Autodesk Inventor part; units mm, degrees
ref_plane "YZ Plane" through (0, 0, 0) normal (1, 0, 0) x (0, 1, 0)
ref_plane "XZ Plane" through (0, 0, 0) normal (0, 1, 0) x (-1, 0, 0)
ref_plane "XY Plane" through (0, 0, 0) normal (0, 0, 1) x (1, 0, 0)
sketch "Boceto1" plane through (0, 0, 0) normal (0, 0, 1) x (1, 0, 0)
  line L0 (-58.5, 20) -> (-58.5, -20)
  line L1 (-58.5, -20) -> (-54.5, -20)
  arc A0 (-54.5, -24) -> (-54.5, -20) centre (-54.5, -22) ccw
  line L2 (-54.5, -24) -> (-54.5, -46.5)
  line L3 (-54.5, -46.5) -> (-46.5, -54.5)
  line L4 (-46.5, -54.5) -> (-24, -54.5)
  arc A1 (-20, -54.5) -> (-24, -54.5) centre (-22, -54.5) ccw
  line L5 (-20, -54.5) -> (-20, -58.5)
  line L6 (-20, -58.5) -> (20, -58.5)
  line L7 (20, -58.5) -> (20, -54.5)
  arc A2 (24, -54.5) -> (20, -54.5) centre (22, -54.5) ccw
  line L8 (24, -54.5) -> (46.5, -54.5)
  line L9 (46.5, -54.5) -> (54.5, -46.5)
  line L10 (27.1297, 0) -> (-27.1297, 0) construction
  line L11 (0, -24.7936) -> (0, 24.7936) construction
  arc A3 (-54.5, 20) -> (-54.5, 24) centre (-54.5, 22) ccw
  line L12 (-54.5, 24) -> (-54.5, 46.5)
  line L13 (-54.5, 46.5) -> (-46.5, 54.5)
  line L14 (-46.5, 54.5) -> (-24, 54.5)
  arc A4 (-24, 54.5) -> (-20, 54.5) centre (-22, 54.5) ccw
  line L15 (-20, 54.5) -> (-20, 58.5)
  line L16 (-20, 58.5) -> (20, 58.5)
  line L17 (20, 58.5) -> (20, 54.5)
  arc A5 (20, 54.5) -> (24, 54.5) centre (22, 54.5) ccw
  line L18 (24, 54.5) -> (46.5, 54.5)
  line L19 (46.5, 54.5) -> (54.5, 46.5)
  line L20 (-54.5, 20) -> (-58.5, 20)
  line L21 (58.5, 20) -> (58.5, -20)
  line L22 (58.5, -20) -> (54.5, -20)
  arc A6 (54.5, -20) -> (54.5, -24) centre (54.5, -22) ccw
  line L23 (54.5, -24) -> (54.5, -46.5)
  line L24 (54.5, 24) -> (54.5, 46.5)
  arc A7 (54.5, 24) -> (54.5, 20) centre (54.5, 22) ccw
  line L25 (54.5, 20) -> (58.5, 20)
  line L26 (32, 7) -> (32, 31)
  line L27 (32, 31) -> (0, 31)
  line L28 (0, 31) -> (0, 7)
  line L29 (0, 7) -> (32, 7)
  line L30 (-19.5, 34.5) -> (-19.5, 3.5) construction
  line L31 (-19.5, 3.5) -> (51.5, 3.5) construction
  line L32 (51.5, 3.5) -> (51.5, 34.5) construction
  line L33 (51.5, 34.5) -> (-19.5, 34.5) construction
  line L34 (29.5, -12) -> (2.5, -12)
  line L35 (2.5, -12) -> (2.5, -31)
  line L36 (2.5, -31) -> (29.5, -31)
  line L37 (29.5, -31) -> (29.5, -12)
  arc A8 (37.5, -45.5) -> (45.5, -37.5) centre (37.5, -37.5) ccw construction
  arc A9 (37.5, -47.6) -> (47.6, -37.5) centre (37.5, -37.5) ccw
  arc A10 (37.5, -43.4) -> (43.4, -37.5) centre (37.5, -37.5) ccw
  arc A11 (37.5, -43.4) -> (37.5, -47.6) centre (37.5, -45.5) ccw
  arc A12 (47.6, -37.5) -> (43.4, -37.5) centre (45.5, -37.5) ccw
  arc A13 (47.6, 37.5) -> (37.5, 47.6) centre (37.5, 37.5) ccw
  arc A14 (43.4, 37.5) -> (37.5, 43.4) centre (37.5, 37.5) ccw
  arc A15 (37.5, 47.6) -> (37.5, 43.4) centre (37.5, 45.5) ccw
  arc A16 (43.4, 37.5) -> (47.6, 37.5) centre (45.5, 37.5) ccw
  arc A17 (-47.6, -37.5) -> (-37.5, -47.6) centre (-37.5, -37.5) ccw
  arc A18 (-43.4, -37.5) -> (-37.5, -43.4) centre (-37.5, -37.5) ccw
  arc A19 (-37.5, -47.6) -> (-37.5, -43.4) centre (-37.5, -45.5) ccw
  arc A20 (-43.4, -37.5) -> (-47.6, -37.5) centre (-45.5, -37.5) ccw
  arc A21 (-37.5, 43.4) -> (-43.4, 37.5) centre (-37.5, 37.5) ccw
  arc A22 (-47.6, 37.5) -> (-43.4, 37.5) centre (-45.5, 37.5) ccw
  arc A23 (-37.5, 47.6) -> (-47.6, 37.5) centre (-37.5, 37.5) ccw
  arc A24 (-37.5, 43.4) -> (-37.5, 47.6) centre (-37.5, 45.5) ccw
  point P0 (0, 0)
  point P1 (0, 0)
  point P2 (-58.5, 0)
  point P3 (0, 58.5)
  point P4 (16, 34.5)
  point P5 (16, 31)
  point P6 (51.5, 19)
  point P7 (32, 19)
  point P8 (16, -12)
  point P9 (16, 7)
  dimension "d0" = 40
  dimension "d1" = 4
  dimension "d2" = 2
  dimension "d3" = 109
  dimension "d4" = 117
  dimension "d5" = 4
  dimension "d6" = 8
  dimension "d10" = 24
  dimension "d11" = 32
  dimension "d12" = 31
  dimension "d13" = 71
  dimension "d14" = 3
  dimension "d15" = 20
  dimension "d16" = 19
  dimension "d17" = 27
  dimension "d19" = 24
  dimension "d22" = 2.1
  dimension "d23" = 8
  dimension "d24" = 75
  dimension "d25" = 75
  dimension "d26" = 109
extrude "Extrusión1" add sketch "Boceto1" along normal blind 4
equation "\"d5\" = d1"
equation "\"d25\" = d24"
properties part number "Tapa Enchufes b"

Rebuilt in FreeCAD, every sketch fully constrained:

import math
import FreeCAD as App
import Part
import Sketcher
from FreeCAD import Vector
Q = App.Units.Quantity

doc = App.newDocument("Part")
body = doc.addObject("PartDesign::Body", "Body")

sketch1 = body.newObject("Sketcher::SketchObject", "Sketch")
sketch1.AttachmentSupport = (doc.getObject("XY_Plane"), [""])
sketch1.MapMode = "FlatFace"
sketch1.addGeometry(Part.LineSegment(Vector(-54.5, 20, 0), Vector(-58.5, 20, 0)), False)
sketch1.addGeometry(Part.LineSegment(Vector(-58.5, 20, 0), Vector(-58.5, -20, 0)), False)
sketch1.addGeometry(Part.LineSegment(Vector(-58.5, -20, 0), Vector(-54.5, -20, 0)), False)
sketch1.addGeometry(Part.ArcOfCircle(Part.Circle(Vector(-54.5, -22, 0), Vector(0, 0, 1), 2), math.radians(-90), math.radians(90)), False)
sketch1.addGeometry(Part.LineSegment(Vector(-54.5, -24, 0), Vector(-54.5, -46.5, 0)), False)
sketch1.addGeometry(Part.LineSegment(Vector(-54.5, -46.5, 0), Vector(-46.5, -54.5, 0)), False)
sketch1.addGeometry(Part.LineSegment(Vector(-46.5, -54.5, 0), Vector(-24, -54.5, 0)), False)
sketch1.addGeometry(Part.ArcOfCircle(Part.Circle(Vector(-22, -54.5, 0), Vector(0, 0, 1), 2), math.radians(0), math.radians(180)), False)
sketch1.addGeometry(Part.LineSegment(Vector(-20, -54.5, 0), Vector(-20, -58.5, 0)), False)
sketch1.addGeometry(Part.LineSegment(Vector(-20, -58.5, 0), Vector(20, -58.5, 0)), False)
sketch1.addGeometry(Part.LineSegment(Vector(20, -58.5, 0), Vector(20, -54.5, 0)), False)
sketch1.addGeometry(Part.ArcOfCircle(Part.Circle(Vector(22, -54.5, 0), Vector(0, 0, 1), 2), math.radians(0), math.radians(180)), False)
sketch1.addGeometry(Part.LineSegment(Vector(24, -54.5, 0), Vector(46.5, -54.5, 0)), False)
sketch1.addGeometry(Part.LineSegment(Vector(46.5, -54.5, 0), Vector(54.5, -46.5, 0)), False)
sketch1.addGeometry(Part.LineSegment(Vector(54.5, -46.5, 0), Vector(54.5, -24, 0)), False)
sketch1.addGeometry(Part.ArcOfCircle(Part.Circle(Vector(54.5, -22, 0), Vector(0, 0, 1), 2), math.radians(90), math.radians(270)), False)
sketch1.addGeometry(Part.LineSegment(Vector(54.5, -20, 0), Vector(58.5, -20, 0)), False)
sketch1.addGeometry(Part.LineSegment(Vector(58.5, -20, 0), Vector(58.5, 20, 0)), False)
sketch1.addGeometry(Part.LineSegment(Vector(58.5, 20, 0), Vector(54.5, 20, 0)), False)
sketch1.addGeometry(Part.ArcOfCircle(Part.Circle(Vector(54.5, 22, 0), Vector(0, 0, 1), 2), math.radians(90), math.radians(270)), False)
sketch1.addGeometry(Part.LineSegment(Vector(54.5, 24, 0), Vector(54.5, 46.5, 0)), False)
sketch1.addGeometry(Part.LineSegment(Vector(54.5, 46.5, 0), Vector(46.5, 54.5, 0)), False)
sketch1.addGeometry(Part.LineSegment(Vector(46.5, 54.5, 0), Vector(24, 54.5, 0)), False)
sketch1.addGeometry(Part.ArcOfCircle(Part.Circle(Vector(22, 54.5, 0), Vector(0, 0, 1), 2), math.radians(180), math.radians(360)), False)
sketch1.addGeometry(Part.LineSegment(Vector(20, 54.5, 0), Vector(20, 58.5, 0)), False)
sketch1.addGeometry(Part.LineSegment(Vector(20, 58.5, 0), Vector(-20, 58.5, 0)), False)
sketch1.addGeometry(Part.LineSegment(Vector(-20, 58.5, 0), Vector(-20, 54.5, 0)), False)
sketch1.addGeometry(Part.ArcOfCircle(Part.Circle(Vector(-22, 54.5, 0), Vector(0, 0, 1), 2), math.radians(180), math.radians(360)), False)
sketch1.addGeometry(Part.LineSegment(Vector(-24, 54.5, 0), Vector(-46.5, 54.5, 0)), False)
sketch1.addGeometry(Part.LineSegment(Vector(-46.5, 54.5, 0), Vector(-54.5, 46.5, 0)), False)
sketch1.addGeometry(Part.LineSegment(Vector(-54.5, 46.5, 0), Vector(-54.5, 24, 0)), False)
sketch1.addGeometry(Part.ArcOfCircle(Part.Circle(Vector(-54.5, 22, 0), Vector(0, 0, 1), 2), math.radians(-90), math.radians(90)), False)
sketch1.addGeometry(Part.ArcOfCircle(Part.Circle(Vector(-37.5, -37.5, 0), Vector(0, 0, 1), 10.1), math.radians(180), math.radians(270)), False)
sketch1.addGeometry(Part.ArcOfCircle(Part.Circle(Vector(-45.5, -37.5, 0), Vector(0, 0, 1), 2.1), math.radians(0), math.radians(180)), False)
sketch1.addGeometry(Part.ArcOfCircle(Part.Circle(Vector(-37.5, -37.5, 0), Vector(0, 0, 1), 5.9), math.radians(180), math.radians(270)), False)
sketch1.addGeometry(Part.ArcOfCircle(Part.Circle(Vector(-37.5, -45.5, 0), Vector(0, 0, 1), 2.1), math.radians(-90), math.radians(90)), False)
sketch1.addGeometry(Part.ArcOfCircle(Part.Circle(Vector(37.5, -37.5, 0), Vector(0, 0, 1), 10.1), math.radians(-90), math.radians(0)), False)
sketch1.addGeometry(Part.ArcOfCircle(Part.Circle(Vector(37.5, -45.5, 0), Vector(0, 0, 1), 2.1), math.radians(90), math.radians(270)), False)
sketch1.addGeometry(Part.ArcOfCircle(Part.Circle(Vector(37.5, -37.5, 0), Vector(0, 0, 1), 5.9), math.radians(-90), math.radians(0)), False)
sketch1.addGeometry(Part.ArcOfCircle(Part.Circle(Vector(45.5, -37.5, 0), Vector(0, 0, 1), 2.1), math.radians(0), math.radians(180)), False)
sketch1.addGeometry(Part.LineSegment(Vector(2.5, -12, 0), Vector(29.5, -12, 0)), False)
sketch1.addGeometry(Part.LineSegment(Vector(29.5, -12, 0), Vector(29.5, -31, 0)), False)
sketch1.addGeometry(Part.LineSegment(Vector(29.5, -31, 0), Vector(2.5, -31, 0)), False)
sketch1.addGeometry(Part.LineSegment(Vector(2.5, -31, 0), Vector(2.5, -12, 0)), False)
sketch1.addGeometry(Part.ArcOfCircle(Part.Circle(Vector(-37.5, 45.5, 0), Vector(0, 0, 1), 2.1), math.radians(-90), math.radians(90)), False)
sketch1.addGeometry(Part.ArcOfCircle(Part.Circle(Vector(-37.5, 37.5, 0), Vector(0, 0, 1), 5.9), math.radians(90), math.radians(180)), False)
sketch1.addGeometry(Part.ArcOfCircle(Part.Circle(Vector(-45.5, 37.5, 0), Vector(0, 0, 1), 2.1), math.radians(180), math.radians(360)), False)
sketch1.addGeometry(Part.ArcOfCircle(Part.Circle(Vector(-37.5, 37.5, 0), Vector(0, 0, 1), 10.1), math.radians(90), math.radians(180)), False)
sketch1.addGeometry(Part.LineSegment(Vector(32, 31, 0), Vector(32, 7, 0)), False)
sketch1.addGeometry(Part.LineSegment(Vector(32, 7, 0), Vector(0, 7, 0)), False)
sketch1.addGeometry(Part.LineSegment(Vector(0, 7, 0), Vector(0, 31, 0)), False)
sketch1.addGeometry(Part.LineSegment(Vector(0, 31, 0), Vector(32, 31, 0)), False)
sketch1.addGeometry(Part.ArcOfCircle(Part.Circle(Vector(37.5, 37.5, 0), Vector(0, 0, 1), 10.1), math.radians(0), math.radians(90)), False)
sketch1.addGeometry(Part.ArcOfCircle(Part.Circle(Vector(45.5, 37.5, 0), Vector(0, 0, 1), 2.1), math.radians(180), math.radians(360)), False)
sketch1.addGeometry(Part.ArcOfCircle(Part.Circle(Vector(37.5, 37.5, 0), Vector(0, 0, 1), 5.9), math.radians(0), math.radians(90)), False)
sketch1.addGeometry(Part.ArcOfCircle(Part.Circle(Vector(37.5, 45.5, 0), Vector(0, 0, 1), 2.1), math.radians(90), math.radians(270)), False)
sketch1.addConstraint(Sketcher.Constraint("Coincident", 0, 2, 1, 1))
sketch1.addConstraint(Sketcher.Constraint("Coincident", 1, 2, 2, 1))
sketch1.addConstraint(Sketcher.Constraint("Tangent", 2, 2, 3, 2))
sketch1.addConstraint(Sketcher.Constraint("Coincident", 3, 1, 4, 1))
sketch1.addConstraint(Sketcher.Constraint("Coincident", 4, 2, 5, 1))
sketch1.addConstraint(Sketcher.Constraint("Coincident", 5, 2, 6, 1))
sketch1.addConstraint(Sketcher.Constraint("Coincident", 6, 2, 7, 2))
sketch1.addConstraint(Sketcher.Constraint("Tangent", 7, 1, 8, 1))
sketch1.addConstraint(Sketcher.Constraint("Coincident", 8, 2, 9, 1))
sketch1.addConstraint(Sketcher.Constraint("Coincident", 9, 2, 10, 1))
sketch1.addConstraint(Sketcher.Constraint("Tangent", 10, 2, 11, 2))
sketch1.addConstraint(Sketcher.Constraint("Coincident", 11, 1, 12, 1))
sketch1.addConstraint(Sketcher.Constraint("Coincident", 12, 2, 13, 1))
sketch1.addConstraint(Sketcher.Constraint("Coincident", 13, 2, 14, 1))
sketch1.addConstraint(Sketcher.Constraint("Coincident", 14, 2, 15, 2))
sketch1.addConstraint(Sketcher.Constraint("Tangent", 15, 1, 16, 1))
sketch1.addConstraint(Sketcher.Constraint("Coincident", 16, 2, 17, 1))
sketch1.addConstraint(Sketcher.Constraint("Coincident", 17, 2, 18, 1))
sketch1.addConstraint(Sketcher.Constraint("Tangent", 18, 2, 19, 2))
sketch1.addConstraint(Sketcher.Constraint("Coincident", 19, 1, 20, 1))
sketch1.addConstraint(Sketcher.Constraint("Coincident", 20, 2, 21, 1))
sketch1.addConstraint(Sketcher.Constraint("Coincident", 21, 2, 22, 1))
sketch1.addConstraint(Sketcher.Constraint("Coincident", 22, 2, 23, 2))
sketch1.addConstraint(Sketcher.Constraint("Tangent", 23, 1, 24, 1))
sketch1.addConstraint(Sketcher.Constraint("Coincident", 24, 2, 25, 1))
sketch1.addConstraint(Sketcher.Constraint("Coincident", 25, 2, 26, 1))
sketch1.addConstraint(Sketcher.Constraint("Tangent", 26, 2, 27, 2))
sketch1.addConstraint(Sketcher.Constraint("Coincident", 27, 1, 28, 1))
sketch1.addConstraint(Sketcher.Constraint("Coincident", 28, 2, 29, 1))
sketch1.addConstraint(Sketcher.Constraint("Coincident", 29, 2, 30, 1))
sketch1.addConstraint(Sketcher.Constraint("Coincident", 30, 2, 31, 2))
sketch1.addConstraint(Sketcher.Constraint("Tangent", 31, 1, 0, 1))
sketch1.addConstraint(Sketcher.Constraint("Tangent", 32, 1, 33, 2))
sketch1.addConstraint(Sketcher.Constraint("Tangent", 33, 1, 34, 1))
sketch1.addConstraint(Sketcher.Constraint("Tangent", 34, 2, 35, 2))
sketch1.addConstraint(Sketcher.Constraint("Tangent", 35, 1, 32, 2))
sketch1.addConstraint(Sketcher.Constraint("Tangent", 36, 1, 37, 2))
sketch1.addConstraint(Sketcher.Constraint("Tangent", 37, 1, 38, 1))
sketch1.addConstraint(Sketcher.Constraint("Tangent", 38, 2, 39, 2))
sketch1.addConstraint(Sketcher.Constraint("Tangent", 39, 1, 36, 2))
sketch1.addConstraint(Sketcher.Constraint("Coincident", 40, 2, 41, 1))
sketch1.addConstraint(Sketcher.Constraint("Coincident", 41, 2, 42, 1))
sketch1.addConstraint(Sketcher.Constraint("Coincident", 42, 2, 43, 1))
sketch1.addConstraint(Sketcher.Constraint("Coincident", 43, 2, 40, 1))
sketch1.addConstraint(Sketcher.Constraint("Tangent", 44, 1, 45, 1))
sketch1.addConstraint(Sketcher.Constraint("Tangent", 45, 2, 46, 2))
sketch1.addConstraint(Sketcher.Constraint("Tangent", 46, 1, 47, 2))
sketch1.addConstraint(Sketcher.Constraint("Tangent", 47, 1, 44, 2))
sketch1.addConstraint(Sketcher.Constraint("Coincident", 48, 2, 49, 1))
sketch1.addConstraint(Sketcher.Constraint("Coincident", 49, 2, 50, 1))
sketch1.addConstraint(Sketcher.Constraint("Coincident", 50, 2, 51, 1))
sketch1.addConstraint(Sketcher.Constraint("Coincident", 51, 2, 48, 1))
sketch1.addConstraint(Sketcher.Constraint("Tangent", 52, 1, 53, 2))
sketch1.addConstraint(Sketcher.Constraint("Tangent", 53, 1, 54, 1))
sketch1.addConstraint(Sketcher.Constraint("Tangent", 54, 2, 55, 2))
sketch1.addConstraint(Sketcher.Constraint("Tangent", 55, 1, 52, 2))
sketch1.addConstraint(Sketcher.Constraint("Horizontal", 0))
sketch1.addConstraint(Sketcher.Constraint("Vertical", 1))
sketch1.addConstraint(Sketcher.Constraint("Horizontal", 2))
sketch1.addConstraint(Sketcher.Constraint("Vertical", 4))
sketch1.addConstraint(Sketcher.Constraint("Horizontal", 6))
sketch1.addConstraint(Sketcher.Constraint("Vertical", 8))
sketch1.addConstraint(Sketcher.Constraint("Horizontal", 9))
sketch1.addConstraint(Sketcher.Constraint("Vertical", 10))
sketch1.addConstraint(Sketcher.Constraint("Horizontal", 12))
sketch1.addConstraint(Sketcher.Constraint("Vertical", 14))
sketch1.addConstraint(Sketcher.Constraint("Horizontal", 16))
sketch1.addConstraint(Sketcher.Constraint("Vertical", 17))
sketch1.addConstraint(Sketcher.Constraint("Horizontal", 18))
sketch1.addConstraint(Sketcher.Constraint("Vertical", 20))
sketch1.addConstraint(Sketcher.Constraint("Horizontal", 22))
sketch1.addConstraint(Sketcher.Constraint("Vertical", 24))
sketch1.addConstraint(Sketcher.Constraint("Horizontal", 25))
sketch1.addConstraint(Sketcher.Constraint("Vertical", 26))
sketch1.addConstraint(Sketcher.Constraint("Horizontal", 28))
sketch1.addConstraint(Sketcher.Constraint("Vertical", 30))
sketch1.addConstraint(Sketcher.Constraint("Horizontal", 40))
sketch1.addConstraint(Sketcher.Constraint("Vertical", 41))
sketch1.addConstraint(Sketcher.Constraint("Horizontal", 42))
sketch1.addConstraint(Sketcher.Constraint("Vertical", 43))
sketch1.addConstraint(Sketcher.Constraint("Vertical", 48))
sketch1.addConstraint(Sketcher.Constraint("Horizontal", 49))
sketch1.addConstraint(Sketcher.Constraint("Vertical", 50))
sketch1.addConstraint(Sketcher.Constraint("Horizontal", 51))
sketch1.addConstraint(Sketcher.Constraint("Coincident", 34, 3, 32, 3))
sketch1.addConstraint(Sketcher.Constraint("Coincident", 38, 3, 36, 3))
sketch1.addConstraint(Sketcher.Constraint("Coincident", 47, 3, 45, 3))
sketch1.addConstraint(Sketcher.Constraint("Coincident", 54, 3, 52, 3))
sketch1.addConstraint(Sketcher.Constraint("Equal", 3, 7))
sketch1.addConstraint(Sketcher.Constraint("Equal", 7, 11))
sketch1.addConstraint(Sketcher.Constraint("Equal", 11, 15))
sketch1.addConstraint(Sketcher.Constraint("Equal", 15, 19))
sketch1.addConstraint(Sketcher.Constraint("Equal", 19, 23))
sketch1.addConstraint(Sketcher.Constraint("Equal", 23, 27))
sketch1.addConstraint(Sketcher.Constraint("Equal", 27, 31))
sketch1.addConstraint(Sketcher.Constraint("Equal", 32, 36))
sketch1.addConstraint(Sketcher.Constraint("Equal", 35, 37))
sketch1.addConstraint(Sketcher.Constraint("Equal", 39, 44))
sketch1.addConstraint(Sketcher.Constraint("Equal", 38, 45))
sketch1.addConstraint(Sketcher.Constraint("Equal", 47, 52))
sketch1.addConstraint(Sketcher.Constraint("Equal", 46, 53))
sketch1.addConstraint(Sketcher.Constraint("Symmetric", 3, 3, 19, 3, -1, 1))
sketch1.addConstraint(Sketcher.Constraint("Symmetric", 7, 3, 23, 3, -1, 1))
sketch1.addConstraint(Sketcher.Constraint("Symmetric", 11, 3, 27, 3, -1, 1))
sketch1.addConstraint(Sketcher.Constraint("Symmetric", 15, 3, 31, 3, -1, 1))
sketch1.addConstraint(Sketcher.Constraint("Symmetric", 37, 3, 44, 3, -1, 1))
sketch1.addConstraint(Sketcher.Constraint("Symmetric", 39, 3, 46, 3, -1, 1))
sketch1.addConstraint(Sketcher.Constraint("Symmetric", 32, 3, 52, 3, -1, 1))
sketch1.addConstraint(Sketcher.Constraint("Symmetric", 4, 2, 20, 2, -1, 1))
sketch1.addConstraint(Sketcher.Constraint("Symmetric", 5, 2, 21, 2, -1, 1))
sketch1.addConstraint(Sketcher.Constraint("Symmetric", 12, 2, 28, 2, -1, 1))
sketch1.addConstraint(Sketcher.Constraint("Symmetric", 13, 2, 29, 2, -1, 1))
sketch1.addConstraint(Sketcher.Constraint("Symmetric", 7, 3, 11, 3, -2))
sketch1.addConstraint(Sketcher.Constraint("Symmetric", 3, 3, 15, 3, -2))
sketch1.addConstraint(Sketcher.Constraint("Symmetric", 32, 3, 36, 3, -2))
sketch1.addConstraint(Sketcher.Constraint("Symmetric", 5, 2, 12, 2, -2))
sketch1.addConstraint(Sketcher.Constraint("Symmetric", 4, 2, 13, 2, -2))
sketch1.addConstraint(Sketcher.Constraint("PointOnObject", 49, 2, -2))
sketch1.addConstraint(Sketcher.Constraint("Perpendicular", 5, 13))
sketch1.addConstraint(Sketcher.Constraint("Horizontal", 32, 3, 33, 3))
sketch1.addConstraint(Sketcher.Constraint("Horizontal", 38, 3, 39, 3))
sketch1.addConstraint(Sketcher.Constraint("Horizontal", 52, 3, 53, 3))
sketch1.addConstraint(Sketcher.Constraint("Horizontal", 11, 3, 5, 2))
sketch1.addConstraint(Sketcher.Constraint("Vertical", 34, 3, 35, 3))
sketch1.addConstraint(Sketcher.Constraint("Vertical", 36, 3, 37, 3))
sketch1.addConstraint(Sketcher.Constraint("Vertical", 54, 3, 55, 3))
sketch1.addConstraint(Sketcher.Constraint("Vertical", 2, 2, 3, 1))
sketch1.addConstraint(Sketcher.Constraint("Equal", 2, 16))
sketch1.addConstraint(Sketcher.Constraint("Equal", 25, 1))
sketch1.addConstraint(Sketcher.Constraint("Equal", 28, 4))
sketch1.addConstraint(Sketcher.Constraint("Equal", 18, 8))
sketch1.addConstraint(Sketcher.Constraint("Equal", 10, 24))
sketch1.addConstraint(Sketcher.Constraint("Radius", 3, Q("2 mm")))
sketch1.addConstraint(Sketcher.Constraint("Radius", 33, Q("2.1 mm")))
sketch1.addConstraint(Sketcher.Constraint("DistanceX", 0, 2, 0, 1, Q("4 mm")))
sketch1.addConstraint(Sketcher.Constraint("DistanceX", 9, 1, 9, 2, Q("40 mm")))
sketch1.addConstraint(Sketcher.Constraint("DistanceX", 40, 1, 40, 2, Q("27 mm")))
sketch1.addConstraint(Sketcher.Constraint("DistanceX", 49, 2, 49, 1, Q("32 mm")))
sketch1.addConstraint(Sketcher.Constraint("DistanceY", 41, 2, 41, 1, Q("19 mm")))
sketch1.addConstraint(Sketcher.Constraint("DistanceY", 48, 2, 48, 1, Q("24 mm")))
sketch1.addConstraint(Sketcher.Constraint("DistanceY", 41, 2, -1, 1, Q("31 mm")))
sketch1.addConstraint(Sketcher.Constraint("DistanceY", -1, 1, 50, 2, Q("31 mm")))
sketch1.addConstraint(Sketcher.Constraint("Radius", 32, Q("10.1 mm")))
sketch1.addConstraint(Sketcher.Constraint("DistanceX", 6, 1, 6, 2, Q("22.5 mm")))
sketch1.addConstraint(Sketcher.Constraint("DistanceX", 3, 3, -1, 1, Q("54.5 mm")))
sketch1.addConstraint(Sketcher.Constraint("DistanceX", 32, 3, -1, 1, Q("37.5 mm")))
sketch1.addConstraint(Sketcher.Constraint("DistanceY", 32, 3, -1, 1, Q("37.5 mm")))
sketch1.addConstraint(Sketcher.Constraint("DistanceX", -1, 1, 40, 2, Q("29.5 mm")))
pad1 = body.newObject("PartDesign::Pad", "Pad")
pad1.Profile = sketch1
pad1.Length = 4

doc.recompute()
